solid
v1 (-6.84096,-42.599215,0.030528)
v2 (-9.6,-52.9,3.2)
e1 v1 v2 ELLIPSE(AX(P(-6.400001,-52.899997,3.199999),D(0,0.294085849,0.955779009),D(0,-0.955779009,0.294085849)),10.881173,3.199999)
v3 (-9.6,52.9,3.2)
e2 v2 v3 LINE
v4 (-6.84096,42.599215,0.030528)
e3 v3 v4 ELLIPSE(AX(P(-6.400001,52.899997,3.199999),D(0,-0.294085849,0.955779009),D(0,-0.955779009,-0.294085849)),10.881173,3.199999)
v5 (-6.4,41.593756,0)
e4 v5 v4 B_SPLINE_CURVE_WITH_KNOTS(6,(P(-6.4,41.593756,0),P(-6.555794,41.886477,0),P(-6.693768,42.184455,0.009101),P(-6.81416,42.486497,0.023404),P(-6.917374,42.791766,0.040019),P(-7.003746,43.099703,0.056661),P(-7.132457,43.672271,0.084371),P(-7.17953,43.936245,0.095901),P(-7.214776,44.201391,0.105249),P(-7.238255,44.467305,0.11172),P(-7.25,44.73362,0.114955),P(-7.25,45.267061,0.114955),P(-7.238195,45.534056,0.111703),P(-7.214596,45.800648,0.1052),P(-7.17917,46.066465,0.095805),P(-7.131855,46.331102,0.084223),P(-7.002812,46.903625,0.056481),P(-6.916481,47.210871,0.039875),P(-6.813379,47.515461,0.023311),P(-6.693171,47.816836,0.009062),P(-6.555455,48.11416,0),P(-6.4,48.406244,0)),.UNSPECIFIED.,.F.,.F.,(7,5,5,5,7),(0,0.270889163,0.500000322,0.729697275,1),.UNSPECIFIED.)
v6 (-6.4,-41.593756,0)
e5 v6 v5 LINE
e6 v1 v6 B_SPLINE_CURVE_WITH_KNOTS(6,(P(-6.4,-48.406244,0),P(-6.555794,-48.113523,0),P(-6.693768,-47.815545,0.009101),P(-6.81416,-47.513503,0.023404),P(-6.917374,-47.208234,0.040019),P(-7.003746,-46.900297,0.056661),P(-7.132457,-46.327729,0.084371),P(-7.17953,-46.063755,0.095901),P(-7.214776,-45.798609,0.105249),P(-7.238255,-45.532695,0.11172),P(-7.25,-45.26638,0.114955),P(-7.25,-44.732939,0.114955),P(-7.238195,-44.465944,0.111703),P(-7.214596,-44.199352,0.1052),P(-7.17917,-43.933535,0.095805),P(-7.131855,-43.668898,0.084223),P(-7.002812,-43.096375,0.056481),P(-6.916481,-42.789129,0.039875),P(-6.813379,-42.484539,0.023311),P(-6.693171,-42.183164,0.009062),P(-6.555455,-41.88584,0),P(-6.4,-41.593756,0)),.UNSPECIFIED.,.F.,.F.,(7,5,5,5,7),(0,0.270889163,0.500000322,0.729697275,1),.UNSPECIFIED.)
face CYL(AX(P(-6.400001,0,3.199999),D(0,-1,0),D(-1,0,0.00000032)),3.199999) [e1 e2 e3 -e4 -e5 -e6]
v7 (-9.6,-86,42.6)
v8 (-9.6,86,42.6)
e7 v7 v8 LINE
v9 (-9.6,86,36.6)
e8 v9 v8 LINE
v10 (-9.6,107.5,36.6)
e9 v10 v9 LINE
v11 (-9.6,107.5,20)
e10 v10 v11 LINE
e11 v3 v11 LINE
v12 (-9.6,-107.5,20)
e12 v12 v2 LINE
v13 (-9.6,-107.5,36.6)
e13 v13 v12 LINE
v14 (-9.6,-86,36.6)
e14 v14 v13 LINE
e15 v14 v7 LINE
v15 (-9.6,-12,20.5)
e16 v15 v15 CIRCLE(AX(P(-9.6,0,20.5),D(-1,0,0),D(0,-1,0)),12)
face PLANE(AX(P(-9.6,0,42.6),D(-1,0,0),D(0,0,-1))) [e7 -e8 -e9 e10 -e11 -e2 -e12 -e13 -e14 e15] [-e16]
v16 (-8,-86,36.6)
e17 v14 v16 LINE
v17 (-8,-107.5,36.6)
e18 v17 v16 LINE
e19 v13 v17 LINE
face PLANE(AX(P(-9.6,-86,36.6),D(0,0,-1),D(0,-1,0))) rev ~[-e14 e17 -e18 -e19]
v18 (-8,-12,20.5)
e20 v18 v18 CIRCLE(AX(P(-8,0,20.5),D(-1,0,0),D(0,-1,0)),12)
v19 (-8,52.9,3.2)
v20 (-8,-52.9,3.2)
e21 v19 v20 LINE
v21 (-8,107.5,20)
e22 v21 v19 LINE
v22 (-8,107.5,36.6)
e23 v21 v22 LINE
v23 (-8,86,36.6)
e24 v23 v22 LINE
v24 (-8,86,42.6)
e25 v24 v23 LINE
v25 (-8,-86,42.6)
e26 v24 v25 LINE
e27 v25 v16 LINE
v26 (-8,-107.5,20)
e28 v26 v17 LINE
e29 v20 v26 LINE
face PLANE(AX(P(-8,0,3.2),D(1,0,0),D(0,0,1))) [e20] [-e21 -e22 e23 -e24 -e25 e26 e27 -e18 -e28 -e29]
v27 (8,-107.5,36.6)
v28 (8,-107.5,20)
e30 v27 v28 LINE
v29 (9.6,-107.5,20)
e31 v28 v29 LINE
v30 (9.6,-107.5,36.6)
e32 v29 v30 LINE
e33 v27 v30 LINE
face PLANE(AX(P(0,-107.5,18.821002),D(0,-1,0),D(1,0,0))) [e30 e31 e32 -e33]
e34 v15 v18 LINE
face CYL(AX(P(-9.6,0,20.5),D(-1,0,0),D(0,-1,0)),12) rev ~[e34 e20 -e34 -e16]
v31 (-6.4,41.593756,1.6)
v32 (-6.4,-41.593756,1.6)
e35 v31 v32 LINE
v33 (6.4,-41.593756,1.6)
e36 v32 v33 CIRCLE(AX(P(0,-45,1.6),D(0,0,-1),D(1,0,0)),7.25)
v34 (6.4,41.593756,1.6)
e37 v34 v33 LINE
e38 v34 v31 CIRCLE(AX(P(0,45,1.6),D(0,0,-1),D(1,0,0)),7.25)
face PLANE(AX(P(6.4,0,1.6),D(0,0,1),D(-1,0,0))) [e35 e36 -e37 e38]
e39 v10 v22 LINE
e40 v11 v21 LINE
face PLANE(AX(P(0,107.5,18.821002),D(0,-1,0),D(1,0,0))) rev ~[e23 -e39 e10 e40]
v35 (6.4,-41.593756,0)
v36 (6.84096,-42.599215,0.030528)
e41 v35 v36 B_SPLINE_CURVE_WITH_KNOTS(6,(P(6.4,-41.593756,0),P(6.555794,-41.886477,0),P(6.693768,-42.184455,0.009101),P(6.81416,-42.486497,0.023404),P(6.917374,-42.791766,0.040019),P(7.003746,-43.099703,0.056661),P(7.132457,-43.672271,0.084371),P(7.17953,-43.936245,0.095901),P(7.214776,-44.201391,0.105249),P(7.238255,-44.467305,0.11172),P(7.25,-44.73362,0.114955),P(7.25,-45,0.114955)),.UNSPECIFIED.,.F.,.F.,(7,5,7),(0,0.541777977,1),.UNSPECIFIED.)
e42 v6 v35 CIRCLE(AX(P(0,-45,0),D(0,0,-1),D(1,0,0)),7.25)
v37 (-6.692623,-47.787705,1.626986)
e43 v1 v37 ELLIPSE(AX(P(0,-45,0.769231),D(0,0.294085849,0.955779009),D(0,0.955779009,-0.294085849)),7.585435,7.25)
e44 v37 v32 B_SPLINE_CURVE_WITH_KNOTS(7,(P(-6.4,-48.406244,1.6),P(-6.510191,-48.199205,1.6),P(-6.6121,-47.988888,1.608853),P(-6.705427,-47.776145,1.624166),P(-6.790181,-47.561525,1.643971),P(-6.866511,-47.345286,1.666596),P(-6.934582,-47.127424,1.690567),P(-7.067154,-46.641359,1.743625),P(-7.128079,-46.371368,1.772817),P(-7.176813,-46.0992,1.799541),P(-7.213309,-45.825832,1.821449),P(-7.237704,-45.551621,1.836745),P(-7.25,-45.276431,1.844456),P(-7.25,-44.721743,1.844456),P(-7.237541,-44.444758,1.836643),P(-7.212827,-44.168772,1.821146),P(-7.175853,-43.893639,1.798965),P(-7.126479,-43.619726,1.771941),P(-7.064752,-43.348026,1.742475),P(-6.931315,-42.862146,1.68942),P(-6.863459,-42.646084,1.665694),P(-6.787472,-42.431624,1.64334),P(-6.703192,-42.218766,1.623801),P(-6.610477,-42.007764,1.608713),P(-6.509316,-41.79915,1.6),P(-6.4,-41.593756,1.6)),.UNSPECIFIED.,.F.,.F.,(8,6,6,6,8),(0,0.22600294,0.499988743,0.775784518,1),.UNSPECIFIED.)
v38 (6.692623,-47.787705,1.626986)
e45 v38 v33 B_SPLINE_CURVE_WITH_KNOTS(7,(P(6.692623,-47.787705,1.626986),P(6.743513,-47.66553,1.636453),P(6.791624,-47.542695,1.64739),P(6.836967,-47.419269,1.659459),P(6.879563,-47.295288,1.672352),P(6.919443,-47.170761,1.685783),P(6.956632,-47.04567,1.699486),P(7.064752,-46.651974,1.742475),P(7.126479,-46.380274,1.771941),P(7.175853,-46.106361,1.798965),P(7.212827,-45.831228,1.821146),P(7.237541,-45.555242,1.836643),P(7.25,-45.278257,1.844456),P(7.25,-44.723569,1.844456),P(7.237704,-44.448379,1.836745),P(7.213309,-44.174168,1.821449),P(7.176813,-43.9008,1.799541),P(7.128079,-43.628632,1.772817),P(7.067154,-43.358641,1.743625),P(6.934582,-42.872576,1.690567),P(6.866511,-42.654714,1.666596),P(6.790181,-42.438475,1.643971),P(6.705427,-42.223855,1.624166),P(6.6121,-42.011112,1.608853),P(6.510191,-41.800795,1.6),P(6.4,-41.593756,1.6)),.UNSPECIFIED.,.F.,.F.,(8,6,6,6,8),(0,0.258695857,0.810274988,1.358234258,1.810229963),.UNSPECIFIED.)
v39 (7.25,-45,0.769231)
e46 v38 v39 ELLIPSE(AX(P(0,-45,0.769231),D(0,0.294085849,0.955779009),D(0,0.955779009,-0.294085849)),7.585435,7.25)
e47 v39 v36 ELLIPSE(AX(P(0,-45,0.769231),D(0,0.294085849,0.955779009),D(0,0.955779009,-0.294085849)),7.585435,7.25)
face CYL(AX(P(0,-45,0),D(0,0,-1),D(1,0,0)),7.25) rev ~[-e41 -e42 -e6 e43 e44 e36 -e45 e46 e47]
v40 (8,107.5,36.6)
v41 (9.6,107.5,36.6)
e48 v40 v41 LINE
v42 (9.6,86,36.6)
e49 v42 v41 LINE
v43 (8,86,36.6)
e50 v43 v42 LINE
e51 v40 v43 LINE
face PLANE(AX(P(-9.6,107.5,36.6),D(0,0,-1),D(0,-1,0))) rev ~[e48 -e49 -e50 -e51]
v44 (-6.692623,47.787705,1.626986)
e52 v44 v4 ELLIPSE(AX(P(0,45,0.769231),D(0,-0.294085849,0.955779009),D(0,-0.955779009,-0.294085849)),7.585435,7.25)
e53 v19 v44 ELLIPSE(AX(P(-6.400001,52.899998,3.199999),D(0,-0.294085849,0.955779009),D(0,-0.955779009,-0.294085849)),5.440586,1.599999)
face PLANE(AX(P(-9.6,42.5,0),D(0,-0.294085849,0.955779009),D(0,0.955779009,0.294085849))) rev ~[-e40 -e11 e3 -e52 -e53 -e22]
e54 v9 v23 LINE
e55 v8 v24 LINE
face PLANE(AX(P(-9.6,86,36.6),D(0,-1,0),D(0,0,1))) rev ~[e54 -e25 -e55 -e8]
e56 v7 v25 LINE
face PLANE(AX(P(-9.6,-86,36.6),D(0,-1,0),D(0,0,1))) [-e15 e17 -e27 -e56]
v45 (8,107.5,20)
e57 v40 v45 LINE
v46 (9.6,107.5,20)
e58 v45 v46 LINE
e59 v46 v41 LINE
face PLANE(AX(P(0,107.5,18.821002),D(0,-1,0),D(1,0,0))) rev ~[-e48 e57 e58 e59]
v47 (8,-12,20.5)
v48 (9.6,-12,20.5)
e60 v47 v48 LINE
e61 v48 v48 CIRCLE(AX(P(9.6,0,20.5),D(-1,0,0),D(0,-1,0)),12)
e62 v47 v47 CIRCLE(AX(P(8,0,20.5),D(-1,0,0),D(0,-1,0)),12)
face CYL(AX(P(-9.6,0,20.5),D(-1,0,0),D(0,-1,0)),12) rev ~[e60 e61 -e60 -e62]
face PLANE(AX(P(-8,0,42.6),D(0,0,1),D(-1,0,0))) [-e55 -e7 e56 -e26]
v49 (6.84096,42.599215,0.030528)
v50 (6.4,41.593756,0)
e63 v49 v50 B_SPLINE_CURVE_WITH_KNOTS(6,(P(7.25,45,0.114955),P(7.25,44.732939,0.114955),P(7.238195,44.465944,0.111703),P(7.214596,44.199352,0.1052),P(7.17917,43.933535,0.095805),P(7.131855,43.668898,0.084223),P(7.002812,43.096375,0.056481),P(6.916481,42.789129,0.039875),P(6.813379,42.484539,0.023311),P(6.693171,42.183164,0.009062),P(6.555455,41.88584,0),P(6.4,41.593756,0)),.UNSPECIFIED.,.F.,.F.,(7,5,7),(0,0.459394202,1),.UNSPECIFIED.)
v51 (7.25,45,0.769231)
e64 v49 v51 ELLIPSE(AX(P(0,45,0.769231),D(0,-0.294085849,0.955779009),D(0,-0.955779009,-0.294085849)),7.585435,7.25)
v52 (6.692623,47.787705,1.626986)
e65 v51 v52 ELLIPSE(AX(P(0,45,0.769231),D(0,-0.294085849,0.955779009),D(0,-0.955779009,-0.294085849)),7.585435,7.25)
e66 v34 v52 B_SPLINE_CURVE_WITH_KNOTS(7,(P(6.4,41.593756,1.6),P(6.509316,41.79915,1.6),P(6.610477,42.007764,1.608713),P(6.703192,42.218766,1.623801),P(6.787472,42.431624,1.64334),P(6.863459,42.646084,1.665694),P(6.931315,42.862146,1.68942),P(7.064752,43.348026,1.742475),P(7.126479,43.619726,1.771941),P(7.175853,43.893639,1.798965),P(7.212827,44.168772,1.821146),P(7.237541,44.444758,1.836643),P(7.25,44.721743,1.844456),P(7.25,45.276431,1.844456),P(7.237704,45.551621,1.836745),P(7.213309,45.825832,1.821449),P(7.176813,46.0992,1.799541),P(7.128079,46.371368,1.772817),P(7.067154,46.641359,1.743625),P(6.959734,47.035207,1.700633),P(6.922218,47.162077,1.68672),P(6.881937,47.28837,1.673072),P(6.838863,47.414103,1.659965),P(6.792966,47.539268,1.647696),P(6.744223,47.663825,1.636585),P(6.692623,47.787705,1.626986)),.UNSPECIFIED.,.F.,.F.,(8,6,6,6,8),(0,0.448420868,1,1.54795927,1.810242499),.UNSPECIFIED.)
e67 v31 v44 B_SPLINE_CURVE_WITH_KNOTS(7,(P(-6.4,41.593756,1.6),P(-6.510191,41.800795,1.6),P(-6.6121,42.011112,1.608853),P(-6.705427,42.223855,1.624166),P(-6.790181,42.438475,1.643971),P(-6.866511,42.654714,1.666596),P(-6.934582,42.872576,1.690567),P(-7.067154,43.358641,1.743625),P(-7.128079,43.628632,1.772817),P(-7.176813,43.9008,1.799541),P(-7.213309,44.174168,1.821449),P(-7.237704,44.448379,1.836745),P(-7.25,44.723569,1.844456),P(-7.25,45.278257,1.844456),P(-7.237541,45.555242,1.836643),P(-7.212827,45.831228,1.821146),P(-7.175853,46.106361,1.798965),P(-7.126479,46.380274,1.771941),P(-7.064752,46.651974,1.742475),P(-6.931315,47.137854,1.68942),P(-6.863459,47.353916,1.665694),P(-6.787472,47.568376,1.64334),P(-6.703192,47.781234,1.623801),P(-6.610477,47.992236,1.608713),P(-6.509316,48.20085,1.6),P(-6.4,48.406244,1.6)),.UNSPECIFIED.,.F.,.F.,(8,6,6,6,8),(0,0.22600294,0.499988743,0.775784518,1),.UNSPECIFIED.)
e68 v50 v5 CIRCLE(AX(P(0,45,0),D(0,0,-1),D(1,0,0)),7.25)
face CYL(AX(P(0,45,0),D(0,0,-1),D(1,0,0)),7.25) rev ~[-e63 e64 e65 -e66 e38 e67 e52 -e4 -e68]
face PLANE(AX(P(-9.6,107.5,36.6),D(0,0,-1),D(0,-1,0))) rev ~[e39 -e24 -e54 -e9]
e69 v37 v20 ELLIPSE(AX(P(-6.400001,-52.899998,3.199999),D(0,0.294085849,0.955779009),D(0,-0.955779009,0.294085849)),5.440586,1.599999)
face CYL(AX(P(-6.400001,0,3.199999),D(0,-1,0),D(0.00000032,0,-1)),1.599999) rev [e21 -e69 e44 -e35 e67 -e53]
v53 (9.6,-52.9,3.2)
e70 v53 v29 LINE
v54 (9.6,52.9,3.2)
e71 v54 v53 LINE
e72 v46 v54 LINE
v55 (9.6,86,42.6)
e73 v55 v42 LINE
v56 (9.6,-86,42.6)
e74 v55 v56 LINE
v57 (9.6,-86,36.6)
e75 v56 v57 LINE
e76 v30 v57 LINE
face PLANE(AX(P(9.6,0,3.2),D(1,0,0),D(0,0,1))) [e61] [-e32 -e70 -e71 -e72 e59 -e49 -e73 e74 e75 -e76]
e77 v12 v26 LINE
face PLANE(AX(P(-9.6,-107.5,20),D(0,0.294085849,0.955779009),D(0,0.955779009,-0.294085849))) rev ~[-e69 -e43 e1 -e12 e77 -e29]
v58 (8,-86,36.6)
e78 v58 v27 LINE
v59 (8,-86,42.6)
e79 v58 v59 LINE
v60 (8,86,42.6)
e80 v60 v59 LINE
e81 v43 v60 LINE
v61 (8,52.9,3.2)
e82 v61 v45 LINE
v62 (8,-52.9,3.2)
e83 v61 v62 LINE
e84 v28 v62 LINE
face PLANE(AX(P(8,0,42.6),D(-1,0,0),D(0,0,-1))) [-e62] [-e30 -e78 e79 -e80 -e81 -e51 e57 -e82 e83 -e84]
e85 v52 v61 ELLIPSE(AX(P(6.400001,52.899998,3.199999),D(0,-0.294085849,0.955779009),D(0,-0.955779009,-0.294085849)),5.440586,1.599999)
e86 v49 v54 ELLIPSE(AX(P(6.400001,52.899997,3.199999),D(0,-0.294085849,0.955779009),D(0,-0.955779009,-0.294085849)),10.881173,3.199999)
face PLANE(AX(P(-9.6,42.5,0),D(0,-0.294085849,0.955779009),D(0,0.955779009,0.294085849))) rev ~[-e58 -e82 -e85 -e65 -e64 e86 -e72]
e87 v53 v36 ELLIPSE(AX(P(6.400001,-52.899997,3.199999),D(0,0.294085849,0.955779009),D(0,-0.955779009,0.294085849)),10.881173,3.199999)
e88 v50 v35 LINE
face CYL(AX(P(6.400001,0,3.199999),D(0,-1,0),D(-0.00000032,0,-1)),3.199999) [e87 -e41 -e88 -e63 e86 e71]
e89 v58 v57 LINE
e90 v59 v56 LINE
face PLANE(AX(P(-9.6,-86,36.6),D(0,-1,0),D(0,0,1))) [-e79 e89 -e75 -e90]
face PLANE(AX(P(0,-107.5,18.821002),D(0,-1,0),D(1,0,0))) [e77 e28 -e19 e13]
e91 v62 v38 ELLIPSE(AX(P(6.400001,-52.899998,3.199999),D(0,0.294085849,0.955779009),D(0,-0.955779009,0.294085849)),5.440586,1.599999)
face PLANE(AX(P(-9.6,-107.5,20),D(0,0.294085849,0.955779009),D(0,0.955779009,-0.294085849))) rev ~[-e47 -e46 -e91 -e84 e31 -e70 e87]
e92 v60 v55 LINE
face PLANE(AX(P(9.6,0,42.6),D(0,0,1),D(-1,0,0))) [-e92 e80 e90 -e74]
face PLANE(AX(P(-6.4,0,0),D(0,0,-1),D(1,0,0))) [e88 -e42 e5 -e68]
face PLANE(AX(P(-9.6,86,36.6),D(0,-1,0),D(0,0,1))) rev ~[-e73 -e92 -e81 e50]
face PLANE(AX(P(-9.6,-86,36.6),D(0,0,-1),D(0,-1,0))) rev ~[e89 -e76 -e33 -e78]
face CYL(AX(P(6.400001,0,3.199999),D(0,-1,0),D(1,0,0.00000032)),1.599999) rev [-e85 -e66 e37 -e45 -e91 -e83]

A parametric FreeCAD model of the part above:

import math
import FreeCAD as App
import Part
import Sketcher

V = App.Vector


def add_polygon(sketch, points):
    """Adds a closed chain of lines whose ends are joined by coincident constraints."""
    first, n = sketch.GeometryCount, len(points)
    for a, b in zip(points, points[1:] + points[:1]):
        sketch.addGeometry(Part.LineSegment(App.Vector(*a, 0), App.Vector(*b, 0)), False)
    for i in range(n):
        sketch.addConstraint(Sketcher.Constraint("Coincident", first + i, 2, first + (i + 1) % n, 1))

doc = App.newDocument("Part")
body = doc.addObject("PartDesign::Body", "Body")

sketch1 = body.newObject("Sketcher::SketchObject", "Sketch")
sketch1.AttachmentSupport = (doc.getObject("XZ_Plane"), [""])
sketch1.MapMode = "FlatFace"
sketch1.addGeometry([
    Part.LineSegment(V(-6.4, 0, 0), V(6.4, 0, 0)),
    Part.ArcOfCircle(Part.Circle(V(6.4, 3.2, 0), V(0, 0, 1), 3.2), math.radians(-90), math.radians(0)),
    Part.LineSegment(V(9.6, 3.2, 0), V(9.6, 42.6, 0)),
    Part.LineSegment(V(9.6, 42.6, 0), V(8, 42.6, 0)),
    Part.LineSegment(V(8, 42.6, 0), V(8, 3.2, 0)),
    Part.ArcOfCircle(Part.Circle(V(6.4, 3.2, 0), V(0, 0, 1), 1.6), math.radians(-90), math.radians(0)),
    Part.LineSegment(V(6.4, 1.6, 0), V(-6.4, 1.6, 0)),
    Part.ArcOfCircle(Part.Circle(V(-6.4, 3.2, 0), V(0, 0, 1), 1.6), math.radians(180), math.radians(270)),
    Part.LineSegment(V(-8, 3.2, 0), V(-8, 42.6, 0)),
    Part.LineSegment(V(-8, 42.6, 0), V(-9.6, 42.6, 0)),
    Part.LineSegment(V(-9.6, 42.6, 0), V(-9.6, 3.2, 0)),
    Part.ArcOfCircle(Part.Circle(V(-6.4, 3.2, 0), V(0, 0, 1), 3.2), math.radians(180), math.radians(270)),
], False)
sketch1.addConstraint([
    Sketcher.Constraint("Tangent", 0, 2, 1, 1),
    Sketcher.Constraint("Tangent", 1, 2, 2, 1),
    Sketcher.Constraint("Coincident", 2, 2, 3, 1),
    Sketcher.Constraint("Coincident", 3, 2, 4, 1),
    Sketcher.Constraint("Tangent", 4, 2, 5, 2),
    Sketcher.Constraint("Tangent", 5, 1, 6, 1),
    Sketcher.Constraint("Tangent", 6, 2, 7, 2),
    Sketcher.Constraint("Tangent", 7, 1, 8, 1),
    Sketcher.Constraint("Coincident", 8, 2, 9, 1),
    Sketcher.Constraint("Coincident", 9, 2, 10, 1),
    Sketcher.Constraint("Tangent", 10, 2, 11, 1),
    Sketcher.Constraint("Tangent", 11, 2, 0, 1),
    Sketcher.Constraint("Horizontal", 0),
    Sketcher.Constraint("Vertical", 2),
    Sketcher.Constraint("Horizontal", 3),
    Sketcher.Constraint("Vertical", 4),
    Sketcher.Constraint("Horizontal", 6),
    Sketcher.Constraint("Vertical", 8),
    Sketcher.Constraint("Horizontal", 9),
    Sketcher.Constraint("Vertical", 10),
    Sketcher.Constraint("Coincident", 5, 3, 1, 3),
    Sketcher.Constraint("Coincident", 11, 3, 7, 3),
    Sketcher.Constraint("Equal", 5, 7),
    Sketcher.Constraint("Symmetric", 0, 2, 11, 2, -1, 1),
    Sketcher.Constraint("Horizontal", 3, 2, 8, 2),
    Sketcher.Constraint("Radius", 1, 3.199999),
    Sketcher.Constraint("Radius", 5, 1.599999),
    Sketcher.Constraint("DistanceX", 0, 1, 0, 2, 12.8),
    Sketcher.Constraint("DistanceY", 2, 1, 2, 2, 39.4),
])
pad1 = body.newObject("PartDesign::Pad", "Pad")
pad1.Profile = sketch1
pad1.Length = 215
pad1.Midplane = True

sketch2 = body.newObject("Sketcher::SketchObject", "Sketch001")
sketch2.AttachmentSupport = (doc.getObject("YZ_Plane"), [""])
sketch2.MapMode = "FlatFace"
sketch2.AttachmentOffset = App.Placement(V(0, 0, -9.6), App.Rotation())
add_polygon(sketch2, [(108, 43), (108, 37), (86, 37), (86, 43)])
add_polygon(sketch2, [(42, 0), (108, 20), (108, 0)])
add_polygon(sketch2, [(-42, 0), (-108, 0), (-108, 20)])
add_polygon(sketch2, [(-86, 43), (-86, 37), (-108, 37), (-108, 43)])
sketch2.addGeometry(Part.Circle(V(0, 20, 0), V(0, 0, 1), 12), False)
sketch2.addConstraint([
    Sketcher.Constraint("Vertical", 0),
    Sketcher.Constraint("Horizontal", 1),
    Sketcher.Constraint("Vertical", 2),
    Sketcher.Constraint("Horizontal", 3),
    Sketcher.Constraint("Vertical", 5),
    Sketcher.Constraint("Horizontal", 6),
    Sketcher.Constraint("Horizontal", 7),
    Sketcher.Constraint("Vertical", 8),
    Sketcher.Constraint("Vertical", 10),
    Sketcher.Constraint("Horizontal", 11),
    Sketcher.Constraint("Vertical", 12),
    Sketcher.Constraint("Horizontal", 13),
    Sketcher.Constraint("Symmetric", 5, 2, 7, 2, -1, 1),
    Sketcher.Constraint("Symmetric", 6, 2, 9, 2, -2),
    Sketcher.Constraint("Symmetric", 1, 2, 10, 2, -2),
    Sketcher.Constraint("Symmetric", 3, 2, 12, 2, -2),
    Sketcher.Constraint("PointOnObject", 14, 3, -2),
    Sketcher.Constraint("Horizontal", 4, 2, 8, 2),
    Sketcher.Constraint("Vertical", 3, 2, 4, 2),
    Sketcher.Constraint("Diameter", 14, 24.0),
    Sketcher.Constraint("DistanceX", 6, 2, 6, 1, 65.0),
    Sketcher.Constraint("DistanceY", 0, 2, 0, 1, 6.0),
    Sketcher.Constraint("DistanceY", 5, 2, 5, 1, 20.0),
    Sketcher.Constraint("DistanceX", 1, 2, 1, 1, 21.5),
    Sketcher.Constraint("DistanceX", -1, 1, 1, 2, 86.0),
    Sketcher.Constraint("DistanceY", -1, 1, 14, 3, 20.5),
    Sketcher.Constraint("DistanceY", -1, 1, 0, 2, 36.6),
])
pocket1 = body.newObject("PartDesign::Pocket", "Pocket")
pocket1.Profile = sketch2
pocket1.Length = 25
pocket1.Reversed = True

sketch3 = body.newObject("Sketcher::SketchObject", "Sketch002")
sketch3.AttachmentSupport = (doc.getObject("XY_Plane"), [""])
sketch3.MapMode = "FlatFace"
sketch3.addGeometry([
    Part.Circle(V(0, 45, 0), V(0, 0, 1), 7),
    Part.Circle(V(0, -45, 0), V(0, 0, 1), 7),
], False)
sketch3.addConstraint([
    Sketcher.Constraint("Equal", 0, 1),
    Sketcher.Constraint("Symmetric", 0, 3, 1, 3, -1, 1),
    Sketcher.Constraint("PointOnObject", 0, 3, -2),
    Sketcher.Constraint("Diameter", 0, 14.5),
    Sketcher.Constraint("DistanceY", -1, 1, 0, 3, 45.0),
])
pocket2 = body.newObject("PartDesign::Pocket", "Pocket001")
pocket2.Profile = sketch3
pocket2.Length = 5
pocket2.Reversed = True

doc.recompute()
